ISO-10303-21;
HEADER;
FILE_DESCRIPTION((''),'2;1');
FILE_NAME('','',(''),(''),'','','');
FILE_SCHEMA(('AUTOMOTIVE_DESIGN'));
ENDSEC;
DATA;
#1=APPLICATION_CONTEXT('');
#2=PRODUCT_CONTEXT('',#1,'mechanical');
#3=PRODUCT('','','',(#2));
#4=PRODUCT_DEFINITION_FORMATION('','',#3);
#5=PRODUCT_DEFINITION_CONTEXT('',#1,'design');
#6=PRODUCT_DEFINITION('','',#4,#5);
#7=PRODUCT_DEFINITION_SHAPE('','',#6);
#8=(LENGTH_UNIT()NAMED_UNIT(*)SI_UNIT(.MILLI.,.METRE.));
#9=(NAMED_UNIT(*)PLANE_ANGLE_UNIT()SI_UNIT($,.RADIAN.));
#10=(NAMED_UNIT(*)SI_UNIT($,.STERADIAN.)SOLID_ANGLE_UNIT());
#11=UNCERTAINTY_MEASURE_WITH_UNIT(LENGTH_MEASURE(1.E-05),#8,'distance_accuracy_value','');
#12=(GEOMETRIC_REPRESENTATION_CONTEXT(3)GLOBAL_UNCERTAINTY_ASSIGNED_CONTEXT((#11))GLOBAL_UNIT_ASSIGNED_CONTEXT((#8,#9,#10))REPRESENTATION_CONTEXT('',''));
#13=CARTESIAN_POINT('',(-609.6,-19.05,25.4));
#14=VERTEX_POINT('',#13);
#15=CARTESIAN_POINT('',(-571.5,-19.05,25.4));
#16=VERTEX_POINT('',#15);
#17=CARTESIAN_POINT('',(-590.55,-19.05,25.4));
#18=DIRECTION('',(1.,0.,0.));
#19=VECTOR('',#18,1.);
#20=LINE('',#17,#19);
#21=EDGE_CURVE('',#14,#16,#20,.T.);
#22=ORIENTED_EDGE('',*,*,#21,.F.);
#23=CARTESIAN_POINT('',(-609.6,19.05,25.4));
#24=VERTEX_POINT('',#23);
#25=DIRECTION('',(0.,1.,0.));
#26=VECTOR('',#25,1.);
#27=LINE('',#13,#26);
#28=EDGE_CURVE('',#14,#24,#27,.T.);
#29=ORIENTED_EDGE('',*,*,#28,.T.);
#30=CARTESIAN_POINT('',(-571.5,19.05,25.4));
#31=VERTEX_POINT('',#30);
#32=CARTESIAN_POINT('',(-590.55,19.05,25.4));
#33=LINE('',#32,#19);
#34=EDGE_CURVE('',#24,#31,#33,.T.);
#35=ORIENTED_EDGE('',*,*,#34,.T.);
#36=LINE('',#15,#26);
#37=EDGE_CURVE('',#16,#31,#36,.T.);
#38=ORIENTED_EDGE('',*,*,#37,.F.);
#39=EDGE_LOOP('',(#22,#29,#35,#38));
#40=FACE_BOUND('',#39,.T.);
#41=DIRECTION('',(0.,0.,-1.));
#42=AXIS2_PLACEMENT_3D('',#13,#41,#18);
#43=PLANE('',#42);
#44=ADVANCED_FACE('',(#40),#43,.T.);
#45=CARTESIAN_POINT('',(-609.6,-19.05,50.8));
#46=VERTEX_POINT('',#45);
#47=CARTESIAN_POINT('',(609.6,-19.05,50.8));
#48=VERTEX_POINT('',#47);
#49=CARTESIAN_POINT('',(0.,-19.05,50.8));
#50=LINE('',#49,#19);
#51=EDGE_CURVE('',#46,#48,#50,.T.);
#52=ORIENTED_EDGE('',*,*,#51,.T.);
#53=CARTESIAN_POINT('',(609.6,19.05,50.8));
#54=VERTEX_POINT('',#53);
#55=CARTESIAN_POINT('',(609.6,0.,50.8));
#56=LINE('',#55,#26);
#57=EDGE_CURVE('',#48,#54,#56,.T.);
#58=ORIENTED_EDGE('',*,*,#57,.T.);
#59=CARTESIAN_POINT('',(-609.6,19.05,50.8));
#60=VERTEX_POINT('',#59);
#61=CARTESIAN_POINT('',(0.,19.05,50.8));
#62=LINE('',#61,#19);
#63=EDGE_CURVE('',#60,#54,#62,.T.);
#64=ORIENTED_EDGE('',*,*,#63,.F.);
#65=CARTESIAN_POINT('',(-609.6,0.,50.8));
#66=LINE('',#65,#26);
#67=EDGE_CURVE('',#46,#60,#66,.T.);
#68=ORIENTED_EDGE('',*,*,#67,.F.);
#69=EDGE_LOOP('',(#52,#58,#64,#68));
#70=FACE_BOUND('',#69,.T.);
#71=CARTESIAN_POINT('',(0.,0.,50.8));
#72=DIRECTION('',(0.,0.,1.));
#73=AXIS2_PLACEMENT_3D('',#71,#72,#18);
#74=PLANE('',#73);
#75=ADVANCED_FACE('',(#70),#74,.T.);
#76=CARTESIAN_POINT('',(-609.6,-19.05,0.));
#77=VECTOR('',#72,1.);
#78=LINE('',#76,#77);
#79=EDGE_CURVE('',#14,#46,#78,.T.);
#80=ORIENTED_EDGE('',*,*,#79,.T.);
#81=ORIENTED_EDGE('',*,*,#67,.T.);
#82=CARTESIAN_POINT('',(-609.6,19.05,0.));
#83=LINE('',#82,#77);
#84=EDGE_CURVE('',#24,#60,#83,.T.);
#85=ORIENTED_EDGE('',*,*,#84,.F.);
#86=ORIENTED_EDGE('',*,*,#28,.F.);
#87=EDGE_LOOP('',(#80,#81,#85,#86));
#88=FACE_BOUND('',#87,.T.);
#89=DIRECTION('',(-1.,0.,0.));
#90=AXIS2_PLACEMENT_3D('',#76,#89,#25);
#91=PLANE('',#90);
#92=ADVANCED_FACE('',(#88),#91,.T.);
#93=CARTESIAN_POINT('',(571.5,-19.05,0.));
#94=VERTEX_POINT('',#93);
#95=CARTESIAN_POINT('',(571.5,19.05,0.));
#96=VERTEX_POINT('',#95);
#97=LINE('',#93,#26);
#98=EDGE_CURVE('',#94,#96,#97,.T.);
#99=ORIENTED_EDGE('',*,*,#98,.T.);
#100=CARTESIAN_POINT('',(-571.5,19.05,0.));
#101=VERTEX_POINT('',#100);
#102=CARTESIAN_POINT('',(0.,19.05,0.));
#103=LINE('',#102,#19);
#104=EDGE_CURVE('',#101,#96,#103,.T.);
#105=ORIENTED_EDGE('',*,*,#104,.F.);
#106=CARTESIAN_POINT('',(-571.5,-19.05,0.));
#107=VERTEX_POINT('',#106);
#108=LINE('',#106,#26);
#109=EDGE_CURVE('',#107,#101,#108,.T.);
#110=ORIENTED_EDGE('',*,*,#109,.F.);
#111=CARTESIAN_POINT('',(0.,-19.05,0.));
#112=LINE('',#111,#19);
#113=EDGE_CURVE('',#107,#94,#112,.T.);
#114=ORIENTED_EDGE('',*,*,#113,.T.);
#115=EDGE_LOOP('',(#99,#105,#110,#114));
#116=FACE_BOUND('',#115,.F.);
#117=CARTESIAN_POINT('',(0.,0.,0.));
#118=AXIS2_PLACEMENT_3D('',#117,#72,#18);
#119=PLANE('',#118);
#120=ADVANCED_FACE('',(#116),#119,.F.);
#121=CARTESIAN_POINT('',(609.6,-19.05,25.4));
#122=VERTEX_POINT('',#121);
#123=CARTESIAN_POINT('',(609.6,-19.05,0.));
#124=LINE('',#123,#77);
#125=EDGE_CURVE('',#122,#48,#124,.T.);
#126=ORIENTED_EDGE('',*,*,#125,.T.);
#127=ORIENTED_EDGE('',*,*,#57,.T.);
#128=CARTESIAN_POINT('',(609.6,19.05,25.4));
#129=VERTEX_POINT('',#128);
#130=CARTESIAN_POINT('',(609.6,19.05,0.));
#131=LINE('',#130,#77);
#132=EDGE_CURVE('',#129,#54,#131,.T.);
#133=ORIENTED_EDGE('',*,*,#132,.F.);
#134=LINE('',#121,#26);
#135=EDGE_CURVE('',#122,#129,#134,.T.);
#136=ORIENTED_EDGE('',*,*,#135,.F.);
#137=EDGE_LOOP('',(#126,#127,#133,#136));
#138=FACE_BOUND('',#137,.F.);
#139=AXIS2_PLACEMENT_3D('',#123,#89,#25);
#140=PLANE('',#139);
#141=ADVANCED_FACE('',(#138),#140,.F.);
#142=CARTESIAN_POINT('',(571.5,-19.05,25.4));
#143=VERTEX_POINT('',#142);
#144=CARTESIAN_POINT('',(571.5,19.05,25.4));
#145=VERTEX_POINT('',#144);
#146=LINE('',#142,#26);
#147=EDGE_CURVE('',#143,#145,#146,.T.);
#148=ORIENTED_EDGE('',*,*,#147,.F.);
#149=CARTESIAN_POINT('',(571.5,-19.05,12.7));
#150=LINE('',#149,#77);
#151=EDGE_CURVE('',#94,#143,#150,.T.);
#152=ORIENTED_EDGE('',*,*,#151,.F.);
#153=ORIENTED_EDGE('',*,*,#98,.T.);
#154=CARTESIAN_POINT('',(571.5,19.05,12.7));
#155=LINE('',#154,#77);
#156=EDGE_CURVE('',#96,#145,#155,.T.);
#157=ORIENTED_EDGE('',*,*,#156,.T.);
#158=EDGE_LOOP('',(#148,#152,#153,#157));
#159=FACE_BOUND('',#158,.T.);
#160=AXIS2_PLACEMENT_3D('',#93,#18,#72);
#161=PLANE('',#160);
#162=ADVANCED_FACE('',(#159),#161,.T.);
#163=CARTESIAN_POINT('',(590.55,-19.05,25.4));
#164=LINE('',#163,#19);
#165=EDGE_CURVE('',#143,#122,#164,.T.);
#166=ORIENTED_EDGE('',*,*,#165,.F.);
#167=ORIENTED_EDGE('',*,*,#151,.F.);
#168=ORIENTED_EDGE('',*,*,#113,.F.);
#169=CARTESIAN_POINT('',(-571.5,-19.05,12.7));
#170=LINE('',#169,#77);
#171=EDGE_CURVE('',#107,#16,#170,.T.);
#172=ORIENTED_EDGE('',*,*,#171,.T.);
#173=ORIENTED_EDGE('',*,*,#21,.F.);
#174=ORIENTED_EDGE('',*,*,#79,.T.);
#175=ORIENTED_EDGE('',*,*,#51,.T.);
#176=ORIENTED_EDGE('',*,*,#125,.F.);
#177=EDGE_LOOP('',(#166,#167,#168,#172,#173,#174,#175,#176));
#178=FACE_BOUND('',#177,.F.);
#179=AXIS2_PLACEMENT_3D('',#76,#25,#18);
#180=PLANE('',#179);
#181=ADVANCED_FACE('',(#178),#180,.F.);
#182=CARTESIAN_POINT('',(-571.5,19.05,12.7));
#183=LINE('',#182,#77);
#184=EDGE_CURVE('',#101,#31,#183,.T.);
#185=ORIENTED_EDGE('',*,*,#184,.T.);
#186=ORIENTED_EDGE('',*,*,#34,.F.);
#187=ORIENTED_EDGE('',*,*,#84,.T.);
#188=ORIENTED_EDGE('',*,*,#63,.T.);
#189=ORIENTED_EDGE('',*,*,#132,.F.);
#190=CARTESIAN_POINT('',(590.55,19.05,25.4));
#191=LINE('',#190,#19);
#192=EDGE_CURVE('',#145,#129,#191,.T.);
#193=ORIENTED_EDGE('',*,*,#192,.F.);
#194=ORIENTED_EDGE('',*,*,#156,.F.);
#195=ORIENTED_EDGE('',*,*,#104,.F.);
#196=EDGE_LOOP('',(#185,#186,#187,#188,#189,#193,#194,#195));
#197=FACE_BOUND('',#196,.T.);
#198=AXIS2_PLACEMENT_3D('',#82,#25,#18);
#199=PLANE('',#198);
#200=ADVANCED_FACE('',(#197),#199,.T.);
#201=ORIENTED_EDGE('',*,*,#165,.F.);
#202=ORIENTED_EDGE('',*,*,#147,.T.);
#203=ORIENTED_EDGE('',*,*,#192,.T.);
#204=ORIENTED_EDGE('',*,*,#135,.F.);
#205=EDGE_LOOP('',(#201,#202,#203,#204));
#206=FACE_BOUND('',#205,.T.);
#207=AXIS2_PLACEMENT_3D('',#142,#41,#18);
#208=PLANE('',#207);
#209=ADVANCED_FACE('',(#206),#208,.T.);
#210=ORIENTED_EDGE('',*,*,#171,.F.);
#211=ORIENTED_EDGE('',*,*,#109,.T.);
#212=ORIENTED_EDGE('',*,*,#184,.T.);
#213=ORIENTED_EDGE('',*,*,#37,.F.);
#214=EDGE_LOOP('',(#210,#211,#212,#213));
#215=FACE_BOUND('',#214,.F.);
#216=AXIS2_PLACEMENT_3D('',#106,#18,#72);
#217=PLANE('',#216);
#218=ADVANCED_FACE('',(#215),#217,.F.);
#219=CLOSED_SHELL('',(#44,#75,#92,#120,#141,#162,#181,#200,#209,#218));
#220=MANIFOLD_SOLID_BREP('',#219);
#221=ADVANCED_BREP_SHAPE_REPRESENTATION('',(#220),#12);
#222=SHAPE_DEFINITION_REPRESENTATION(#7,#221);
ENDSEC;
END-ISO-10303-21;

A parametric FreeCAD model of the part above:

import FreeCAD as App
import Part
import Sketcher
Q = App.Units.Quantity


def add_polygon(sketch, points):
    """Adds a closed chain of lines whose ends are joined by coincident constraints."""
    first, n = sketch.GeometryCount, len(points)
    for a, b in zip(points, points[1:] + points[:1]):
        sketch.addGeometry(Part.LineSegment(App.Vector(*a, 0), App.Vector(*b, 0)), False)
    for i in range(n):
        sketch.addConstraint(Sketcher.Constraint("Coincident", first + i, 2, first + (i + 1) % n, 1))

doc = App.newDocument("Part")
body = doc.addObject("PartDesign::Body", "Body")

# Sketch on XY plane
sketch1 = body.newObject("Sketcher::SketchObject", "Sketch")
sketch1.AttachmentSupport = (doc.getObject("XY_Plane"), [""])
sketch1.MapMode = "FlatFace"
add_polygon(sketch1, [(-610, 19), (-610, -19), (610, -19), (610, 19)])  # lines 0-3
sketch1.addConstraint(Sketcher.Constraint("Vertical", 0))
sketch1.addConstraint(Sketcher.Constraint("Horizontal", 1))
sketch1.addConstraint(Sketcher.Constraint("Vertical", 2))
sketch1.addConstraint(Sketcher.Constraint("Horizontal", 3))
sketch1.addConstraint(Sketcher.Constraint("Symmetric", 0, 2, 2, 2, -1, 1))
sketch1.addConstraint(Sketcher.Constraint("DistanceX", 1, 1, 1, 2, Q("48 in")))
sketch1.addConstraint(Sketcher.Constraint("DistanceY", 0, 2, 0, 1, Q("1.5 in")))
pad1 = body.newObject("PartDesign::Pad", "Pad")
pad1.Profile = sketch1
pad1.Length = Q("2 in")

# Sketch on XZ plane
sketch2 = body.newObject("Sketcher::SketchObject", "Sketch001")
sketch2.AttachmentSupport = (doc.getObject("XZ_Plane"), [""])
sketch2.MapMode = "FlatFace"
sketch2.AttachmentOffset = App.Placement(App.Vector(0, 0, 0.75 * 25.4), App.Rotation())
add_polygon(sketch2, [(572, 25), (572, 0), (610, 0), (610, 25)])  # lines 0-3
add_polygon(sketch2, [(-610, 25), (-610, 0), (-572, 0), (-572, 25)])  # lines 4-7
sketch2.addConstraint(Sketcher.Constraint("Vertical", 0))
sketch2.addConstraint(Sketcher.Constraint("Horizontal", 1))
sketch2.addConstraint(Sketcher.Constraint("Vertical", 2))
sketch2.addConstraint(Sketcher.Constraint("Horizontal", 3))
sketch2.addConstraint(Sketcher.Constraint("Vertical", 4))
sketch2.addConstraint(Sketcher.Constraint("Horizontal", 5))
sketch2.addConstraint(Sketcher.Constraint("Vertical", 6))
sketch2.addConstraint(Sketcher.Constraint("Horizontal", 7))
sketch2.addConstraint(Sketcher.Constraint("Symmetric", 1, 2, 4, 2, -1, 1))
sketch2.addConstraint(Sketcher.Constraint("Symmetric", 0, 2, 5, 2, -2))
sketch2.addConstraint(Sketcher.Constraint("Horizontal", 3, 2, 6, 2))
sketch2.addConstraint(Sketcher.Constraint("DistanceY", 0, 2, 0, 1, Q("1 in")))
sketch2.addConstraint(Sketcher.Constraint("DistanceX", 1, 1, 1, 2, Q("1.5 in")))
sketch2.addConstraint(Sketcher.Constraint("DistanceX", -1, 1, 1, 2, Q("24 in")))
pocket1 = body.newObject("PartDesign::Pocket", "Pocket")
pocket1.Profile = sketch2
pocket1.Length = Q("1.5 in")

doc.recompute()
